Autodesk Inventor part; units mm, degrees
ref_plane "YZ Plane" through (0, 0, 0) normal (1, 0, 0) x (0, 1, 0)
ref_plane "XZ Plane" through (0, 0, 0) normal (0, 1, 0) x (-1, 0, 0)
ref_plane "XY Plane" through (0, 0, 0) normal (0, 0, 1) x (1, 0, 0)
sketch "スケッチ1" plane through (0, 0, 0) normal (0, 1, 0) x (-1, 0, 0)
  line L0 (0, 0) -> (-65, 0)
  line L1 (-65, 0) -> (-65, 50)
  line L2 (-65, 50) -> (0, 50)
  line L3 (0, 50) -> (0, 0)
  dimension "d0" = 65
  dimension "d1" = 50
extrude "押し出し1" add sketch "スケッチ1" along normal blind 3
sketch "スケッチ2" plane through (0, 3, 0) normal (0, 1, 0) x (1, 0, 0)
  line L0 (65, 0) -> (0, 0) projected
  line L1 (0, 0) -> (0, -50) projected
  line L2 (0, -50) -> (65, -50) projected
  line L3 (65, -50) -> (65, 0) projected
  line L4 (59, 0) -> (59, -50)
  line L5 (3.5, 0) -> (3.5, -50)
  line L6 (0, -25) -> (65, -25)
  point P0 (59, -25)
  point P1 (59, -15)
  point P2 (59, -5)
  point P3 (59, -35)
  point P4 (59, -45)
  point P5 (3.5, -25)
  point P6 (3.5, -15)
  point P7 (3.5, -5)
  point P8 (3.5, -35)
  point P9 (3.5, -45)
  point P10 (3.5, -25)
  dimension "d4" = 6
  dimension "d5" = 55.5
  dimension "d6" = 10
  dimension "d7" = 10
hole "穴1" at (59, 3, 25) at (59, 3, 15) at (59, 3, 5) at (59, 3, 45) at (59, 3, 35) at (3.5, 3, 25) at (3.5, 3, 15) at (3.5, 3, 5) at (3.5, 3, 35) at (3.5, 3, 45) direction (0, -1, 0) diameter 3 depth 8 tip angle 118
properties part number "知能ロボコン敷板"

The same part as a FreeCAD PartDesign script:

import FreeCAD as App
import Part
import Sketcher

V = App.Vector

doc = App.newDocument("Part")
body = doc.addObject("PartDesign::Body", "Body")

# Sketch on XZ plane
sketch1 = body.newObject("Sketcher::SketchObject", "Sketch")
sketch1.AttachmentSupport = (doc.getObject("XZ_Plane"), [""])
sketch1.MapMode = "FlatFace"
sketch1.addGeometry(Part.LineSegment(V(65, 0, 0), V(0, 0, 0)), False)
sketch1.addGeometry(Part.LineSegment(V(0, 0, 0), V(0, 50, 0)), False)
sketch1.addGeometry(Part.LineSegment(V(0, 50, 0), V(65, 50, 0)), False)
sketch1.addGeometry(Part.LineSegment(V(65, 50, 0), V(65, 0, 0)), False)
sketch1.addConstraint(Sketcher.Constraint("Coincident", 0, 2, 1, 1))
sketch1.addConstraint(Sketcher.Constraint("Coincident", 1, 2, 2, 1))
sketch1.addConstraint(Sketcher.Constraint("Coincident", 2, 2, 3, 1))
sketch1.addConstraint(Sketcher.Constraint("Coincident", 3, 2, 0, 1))
sketch1.addConstraint(Sketcher.Constraint("Horizontal", 0))
sketch1.addConstraint(Sketcher.Constraint("Vertical", 1))
sketch1.addConstraint(Sketcher.Constraint("Horizontal", 2))
sketch1.addConstraint(Sketcher.Constraint("Vertical", 3))
sketch1.addConstraint(Sketcher.Constraint("Coincident", 0, 2, -1, 1))
sketch1.addConstraint(Sketcher.Constraint("DistanceX", 0, 2, 0, 1, 65.0))
sketch1.addConstraint(Sketcher.Constraint("DistanceY", 1, 1, 1, 2, 50.0))
pad1 = body.newObject("PartDesign::Pad", "Pad")
pad1.Profile = sketch1
pad1.Length = 3
pad1.Reversed = True

# Sketch on XZ plane
sketch2 = body.newObject("Sketcher::SketchObject", "Sketch001")
sketch2.AttachmentSupport = (doc.getObject("XZ_Plane"), [""])
sketch2.MapMode = "FlatFace"
sketch2.AttachmentOffset = App.Placement(V(0, 0, -3), App.Rotation())
sketch2.addGeometry(Part.Circle(V(59, 25, 0), V(0, 0, 1), 1.5), False)
sketch2.addGeometry(Part.Circle(V(59, 15, 0), V(0, 0, 1), 1.5), False)
sketch2.addGeometry(Part.Circle(V(59, 5, 0), V(0, 0, 1), 1.5), False)
sketch2.addGeometry(Part.Circle(V(59, 45, 0), V(0, 0, 1), 1.5), False)
sketch2.addGeometry(Part.Circle(V(59, 35, 0), V(0, 0, 1), 1.5), False)
sketch2.addGeometry(Part.Circle(V(3.5, 25, 0), V(0, 0, 1), 1.5), False)
sketch2.addGeometry(Part.Circle(V(3.5, 15, 0), V(0, 0, 1), 1.5), False)
sketch2.addGeometry(Part.Circle(V(3.5, 5, 0), V(0, 0, 1), 1.5), False)
sketch2.addGeometry(Part.Circle(V(3.5, 35, 0), V(0, 0, 1), 1.5), False)
sketch2.addGeometry(Part.Circle(V(3.5, 45, 0), V(0, 0, 1), 1.5), False)
sketch2.addConstraint(Sketcher.Constraint("Equal", 0, 1))
sketch2.addConstraint(Sketcher.Constraint("Equal", 1, 2))
sketch2.addConstraint(Sketcher.Constraint("Equal", 2, 3))
sketch2.addConstraint(Sketcher.Constraint("Equal", 3, 4))
sketch2.addConstraint(Sketcher.Constraint("Equal", 4, 5))
sketch2.addConstraint(Sketcher.Constraint("Equal", 5, 6))
sketch2.addConstraint(Sketcher.Constraint("Equal", 6, 7))
sketch2.addConstraint(Sketcher.Constraint("Equal", 7, 8))
sketch2.addConstraint(Sketcher.Constraint("Equal", 8, 9))
sketch2.addConstraint(Sketcher.Constraint("Horizontal", 0, 3, 5, 3))
sketch2.addConstraint(Sketcher.Constraint("Horizontal", 1, 3, 6, 3))
sketch2.addConstraint(Sketcher.Constraint("Horizontal", 2, 3, 7, 3))
sketch2.addConstraint(Sketcher.Constraint("Horizontal", 4, 3, 8, 3))
sketch2.addConstraint(Sketcher.Constraint("Horizontal", 3, 3, 9, 3))
sketch2.addConstraint(Sketcher.Constraint("Vertical", 0, 3, 1, 3))
sketch2.addConstraint(Sketcher.Constraint("Vertical", 1, 3, 2, 3))
sketch2.addConstraint(Sketcher.Constraint("Vertical", 2, 3, 3, 3))
sketch2.addConstraint(Sketcher.Constraint("Vertical", 3, 3, 4, 3))
sketch2.addConstraint(Sketcher.Constraint("Vertical", 5, 3, 6, 3))
sketch2.addConstraint(Sketcher.Constraint("Vertical", 6, 3, 7, 3))
sketch2.addConstraint(Sketcher.Constraint("Vertical", 7, 3, 8, 3))
sketch2.addConstraint(Sketcher.Constraint("Vertical", 8, 3, 9, 3))
sketch2.addConstraint(Sketcher.Constraint("Diameter", 0, 3.0))
sketch2.addConstraint(Sketcher.Constraint("DistanceX", -1, 1, 0, 3, 59.0))
sketch2.addConstraint(Sketcher.Constraint("DistanceY", -1, 1, 0, 3, 25.0))
sketch2.addConstraint(Sketcher.Constraint("DistanceY", -1, 1, 1, 3, 15.0))
sketch2.addConstraint(Sketcher.Constraint("DistanceY", -1, 1, 2, 3, 5.0))
sketch2.addConstraint(Sketcher.Constraint("DistanceY", -1, 1, 3, 3, 45.0))
sketch2.addConstraint(Sketcher.Constraint("DistanceY", -1, 1, 4, 3, 35.0))
sketch2.addConstraint(Sketcher.Constraint("DistanceX", -1, 1, 5, 3, 3.5))
doc.recompute()
hole = body.newObject("PartDesign::Hole", "Hole")
hole.Profile = sketch2
hole.ThreadType = "None"
hole.Diameter = 3
hole.DepthType = "Dimension"
hole.Depth = 8
hole.DrillPoint = "Angled"
hole.DrillPointAngle = 118
hole.Reversed = True

doc.recompute()
